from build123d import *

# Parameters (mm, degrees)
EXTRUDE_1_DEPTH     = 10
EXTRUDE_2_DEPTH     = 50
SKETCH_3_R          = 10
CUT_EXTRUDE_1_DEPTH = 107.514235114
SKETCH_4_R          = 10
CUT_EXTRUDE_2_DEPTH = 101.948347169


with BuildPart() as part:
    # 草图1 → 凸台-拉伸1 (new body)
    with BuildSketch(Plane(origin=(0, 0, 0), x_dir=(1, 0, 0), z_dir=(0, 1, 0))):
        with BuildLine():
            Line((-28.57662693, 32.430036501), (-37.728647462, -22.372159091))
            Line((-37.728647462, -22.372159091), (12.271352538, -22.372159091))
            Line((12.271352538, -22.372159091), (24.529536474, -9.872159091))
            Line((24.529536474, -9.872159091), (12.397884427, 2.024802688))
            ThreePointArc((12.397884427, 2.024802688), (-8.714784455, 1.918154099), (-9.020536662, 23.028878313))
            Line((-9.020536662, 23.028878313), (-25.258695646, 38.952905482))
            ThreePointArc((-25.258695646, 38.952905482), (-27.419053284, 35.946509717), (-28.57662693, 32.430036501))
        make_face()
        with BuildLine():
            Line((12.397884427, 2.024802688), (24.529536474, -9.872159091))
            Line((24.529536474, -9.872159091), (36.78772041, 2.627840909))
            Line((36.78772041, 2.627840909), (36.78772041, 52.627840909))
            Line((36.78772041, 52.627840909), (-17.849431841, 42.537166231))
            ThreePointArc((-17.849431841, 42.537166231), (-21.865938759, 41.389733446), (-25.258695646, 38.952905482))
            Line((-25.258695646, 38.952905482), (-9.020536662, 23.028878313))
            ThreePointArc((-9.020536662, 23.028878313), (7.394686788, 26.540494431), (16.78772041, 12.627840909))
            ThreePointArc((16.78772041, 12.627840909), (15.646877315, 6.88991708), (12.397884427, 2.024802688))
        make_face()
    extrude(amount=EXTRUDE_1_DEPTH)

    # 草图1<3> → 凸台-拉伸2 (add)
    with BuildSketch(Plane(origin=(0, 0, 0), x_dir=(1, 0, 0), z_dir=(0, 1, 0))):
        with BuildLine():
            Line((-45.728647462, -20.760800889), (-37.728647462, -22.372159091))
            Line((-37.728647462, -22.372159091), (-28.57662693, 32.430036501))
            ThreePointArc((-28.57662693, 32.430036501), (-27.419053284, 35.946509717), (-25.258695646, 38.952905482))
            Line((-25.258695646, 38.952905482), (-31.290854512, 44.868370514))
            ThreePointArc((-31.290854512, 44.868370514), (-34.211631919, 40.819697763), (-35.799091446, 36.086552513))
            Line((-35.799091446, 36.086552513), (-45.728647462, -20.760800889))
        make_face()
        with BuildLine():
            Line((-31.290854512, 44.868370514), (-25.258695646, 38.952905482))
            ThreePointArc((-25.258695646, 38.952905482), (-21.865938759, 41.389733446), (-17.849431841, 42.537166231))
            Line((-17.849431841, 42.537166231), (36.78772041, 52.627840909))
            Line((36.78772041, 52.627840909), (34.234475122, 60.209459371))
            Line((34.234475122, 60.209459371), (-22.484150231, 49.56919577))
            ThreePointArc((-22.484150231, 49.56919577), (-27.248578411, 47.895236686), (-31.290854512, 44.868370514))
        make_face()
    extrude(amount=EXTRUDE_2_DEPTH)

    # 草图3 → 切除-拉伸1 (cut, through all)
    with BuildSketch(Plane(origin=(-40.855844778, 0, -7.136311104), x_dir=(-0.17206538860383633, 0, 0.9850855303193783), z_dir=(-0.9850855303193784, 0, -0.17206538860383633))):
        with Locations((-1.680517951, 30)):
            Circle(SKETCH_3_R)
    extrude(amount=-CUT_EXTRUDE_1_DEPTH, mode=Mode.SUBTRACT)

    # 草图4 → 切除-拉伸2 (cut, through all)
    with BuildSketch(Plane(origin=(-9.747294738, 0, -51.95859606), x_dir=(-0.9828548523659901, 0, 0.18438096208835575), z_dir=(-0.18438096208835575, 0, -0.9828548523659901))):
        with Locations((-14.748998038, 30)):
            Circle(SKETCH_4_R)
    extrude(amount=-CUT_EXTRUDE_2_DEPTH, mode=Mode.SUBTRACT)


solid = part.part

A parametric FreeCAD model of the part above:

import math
import FreeCAD as App
import Part
import Sketcher
Q = App.Units.Quantity

doc = App.newDocument("Part")
body = doc.addObject("PartDesign::Body", "Body")

sketch1 = body.newObject("Sketcher::SketchObject", "Sketch")
sketch1.AttachmentSupport = (doc.getObject("XZ_Plane"), [""])
sketch1.MapMode = "FlatFace"
sketch1.addGeometry(Part.LineSegment(App.Vector(-29, -32, 0), App.Vector(-38, 22, 0)), False)
sketch1.addGeometry(Part.LineSegment(App.Vector(-38, 22, 0), App.Vector(12, 22, 0)), False)
sketch1.addGeometry(Part.LineSegment(App.Vector(12, 22, 0), App.Vector(37, -3, 0)), False)
sketch1.addGeometry(Part.LineSegment(App.Vector(37, -3, 0), App.Vector(37, -53, 0)), False)
sketch1.addGeometry(Part.LineSegment(App.Vector(37, -53, 0), App.Vector(-18, -43, 0)), False)
sketch1.addGeometry(Part.ArcOfCircle(Part.Circle(App.Vector(-17, -30, 0), App.Vector(0, 0, 1), 12), math.radians(-136), math.radians(-96)), False)
sketch1.addGeometry(Part.ArcOfCircle(Part.Circle(App.Vector(-17, -30, 0), App.Vector(0, 0, 1), 12), math.radians(-171), math.radians(-136)), False)
sketch1.addGeometry(Part.ArcOfCircle(Part.Circle(App.Vector(2, -13, 0), App.Vector(0, 0, 1), 15), math.radians(45), math.radians(224)), False)
sketch1.addGeometry(Part.ArcOfCircle(Part.Circle(App.Vector(2, -13, 0), App.Vector(0, 0, 1), 15), math.radians(-136), math.radians(0)), False)
sketch1.addGeometry(Part.ArcOfCircle(Part.Circle(App.Vector(2, -13, 0), App.Vector(0, 0, 1), 15), math.radians(0), math.radians(45)), False)
sketch1.addConstraint(Sketcher.Constraint("Coincident", 0, 2, 1, 1))
sketch1.addConstraint(Sketcher.Constraint("Coincident", 1, 2, 2, 1))
sketch1.addConstraint(Sketcher.Constraint("Coincident", 2, 2, 3, 1))
sketch1.addConstraint(Sketcher.Constraint("Coincident", 3, 2, 4, 1))
sketch1.addConstraint(Sketcher.Constraint("Coincident", 4, 2, 5, 2))
sketch1.addConstraint(Sketcher.Constraint("Tangent", 5, 1, 6, 2))
sketch1.addConstraint(Sketcher.Constraint("Tangent", 6, 1, 0, 1))
sketch1.addConstraint(Sketcher.Constraint("Tangent", 7, 2, 8, 1))
sketch1.addConstraint(Sketcher.Constraint("Tangent", 8, 2, 9, 1))
sketch1.addConstraint(Sketcher.Constraint("Tangent", 9, 2, 7, 1))
sketch1.addConstraint(Sketcher.Constraint("Horizontal", 1))
sketch1.addConstraint(Sketcher.Constraint("Vertical", 3))
sketch1.addConstraint(Sketcher.Constraint("Equal", 5, 6))
sketch1.addConstraint(Sketcher.Constraint("Horizontal", 9, 3, 8, 2))
sketch1.addConstraint(Sketcher.Constraint("Equal", 1, 3))
sketch1.addConstraint(Sketcher.Constraint("Equal", 0, 4))
sketch1.addConstraint(Sketcher.Constraint("Radius", 7, Q("15 mm")))
sketch1.addConstraint(Sketcher.Constraint("DistanceX", 1, 1, 1, 2, Q("50 mm")))
sketch1.addConstraint(Sketcher.Constraint("DistanceY", 8, 3, 0, 2, Q("35 mm")))
sketch1.addConstraint(Sketcher.Constraint("DistanceY", 2, 2, 1, 2, Q("25 mm")))
sketch1.addConstraint(Sketcher.Constraint("DistanceX", 8, 3, 2, 2, Q("35 mm")))
sketch1.addConstraint(Sketcher.Constraint("Radius", 5, Q("12.182096 mm")))
sketch1.addConstraint(Sketcher.Constraint("DistanceX", 4, 2, 6, 3, Q("1.288499 mm")))
sketch1.addConstraint(Sketcher.Constraint("DistanceY", 5, 1, 6, 3, Q("8.529502 mm")))
sketch1.addConstraint(Sketcher.Constraint("Distance", 0, Q("55.561139 mm")))
sketch1.addConstraint(Sketcher.Constraint("Distance", 2, Q("35.01503 mm")))
sketch1.addConstraint(Sketcher.Constraint("DistanceX", -1, 1, 7, 3, Q("1.78772 mm")))
sketch1.addConstraint(Sketcher.Constraint("DistanceY", 7, 3, -1, 1, Q("12.627841 mm")))
sketch1.addConstraint(Sketcher.Constraint("DistanceY", 7, 2, -1, 1, Q("23.028878 mm")))
sketch1.addConstraint(Sketcher.Constraint("DistanceY", 8, 2, 9, 2, Q("10.603038 mm")))
pad1 = body.newObject("PartDesign::Pad", "Pad")
pad1.Profile = sketch1
pad1.Length = 10
pad1.Reversed = True

sketch2 = body.newObject("Sketcher::SketchObject", "Sketch001")
sketch2.AttachmentSupport = (doc.getObject("XZ_Plane"), [""])
sketch2.MapMode = "FlatFace"
sketch2.addGeometry(Part.LineSegment(App.Vector(-46, 21, 0), App.Vector(-38, 22, 0)), False)
sketch2.addGeometry(Part.LineSegment(App.Vector(-38, 22, 0), App.Vector(-29, -32, 0)), False)
sketch2.addGeometry(Part.ArcOfCircle(Part.Circle(App.Vector(-17, -30, 0), App.Vector(0, 0, 1), 12), math.radians(-171), math.radians(-136)), False)
sketch2.addGeometry(Part.ArcOfCircle(Part.Circle(App.Vector(-17, -30, 0), App.Vector(0, 0, 1), 12), math.radians(-136), math.radians(-96)), False)
sketch2.addGeometry(Part.LineSegment(App.Vector(-18, -43, 0), App.Vector(37, -53, 0)), False)
sketch2.addGeometry(Part.LineSegment(App.Vector(37, -53, 0), App.Vector(34, -60, 0)), False)
sketch2.addGeometry(Part.LineSegment(App.Vector(34, -60, 0), App.Vector(-22, -50, 0)), False)
sketch2.addGeometry(Part.ArcOfCircle(Part.Circle(App.Vector(-19, -33, 0), App.Vector(0, 0, 1), 17), math.radians(-136), math.radians(-101)), False)
sketch2.addGeometry(Part.ArcOfCircle(Part.Circle(App.Vector(-19, -33, 0), App.Vector(0, 0, 1), 17), math.radians(-170), math.radians(-136)), False)
sketch2.addGeometry(Part.LineSegment(App.Vector(-36, -36, 0), App.Vector(-46, 21, 0)), False)
sketch2.addConstraint(Sketcher.Constraint("Coincident", 0, 2, 1, 1))
sketch2.addConstraint(Sketcher.Constraint("Tangent", 1, 2, 2, 1))
sketch2.addConstraint(Sketcher.Constraint("Tangent", 2, 2, 3, 1))
sketch2.addConstraint(Sketcher.Constraint("Coincident", 3, 2, 4, 1))
sketch2.addConstraint(Sketcher.Constraint("Coincident", 4, 2, 5, 1))
sketch2.addConstraint(Sketcher.Constraint("Coincident", 5, 2, 6, 1))
sketch2.addConstraint(Sketcher.Constraint("Tangent", 6, 2, 7, 2))
sketch2.addConstraint(Sketcher.Constraint("Tangent", 7, 1, 8, 2))
sketch2.addConstraint(Sketcher.Constraint("Tangent", 8, 1, 9, 1))
sketch2.addConstraint(Sketcher.Constraint("Coincident", 9, 2, 0, 1))
sketch2.addConstraint(Sketcher.Constraint("Equal", 2, 3))
sketch2.addConstraint(Sketcher.Constraint("Equal", 7, 8))
sketch2.addConstraint(Sketcher.Constraint("Equal", 1, 4))
sketch2.addConstraint(Sketcher.Constraint("Equal", 6, 9))
sketch2.addConstraint(Sketcher.Constraint("Distance", 5, Q("8 mm")))
sketch2.addConstraint(Sketcher.Constraint("DistanceX", 9, 2, 0, 2, Q("8 mm")))
sketch2.addConstraint(Sketcher.Constraint("Radius", 7, Q("16.629031 mm")))
sketch2.addConstraint(Sketcher.Constraint("Radius", 2, Q("12.182096 mm")))
sketch2.addConstraint(Sketcher.Constraint("DistanceY", -1, 1, 9, 2, Q("20.760801 mm")))
sketch2.addConstraint(Sketcher.Constraint("DistanceY", 2, 2, 2, 3, Q("8.529502 mm")))
sketch2.addConstraint(Sketcher.Constraint("DistanceX", 3, 2, 2, 3, Q("1.288499 mm")))
sketch2.addConstraint(Sketcher.Constraint("DistanceY", 7, 1, 8, 3, Q("11.643099 mm")))
sketch2.addConstraint(Sketcher.Constraint("Distance", 1, Q("55.561139 mm")))
sketch2.addConstraint(Sketcher.Constraint("Distance", 6, Q("57.708038 mm")))
sketch2.addConstraint(Sketcher.Constraint("DistanceY", 7, 3, -1, 1, Q("33.225272 mm")))
sketch2.addConstraint(Sketcher.Constraint("DistanceY", -1, 1, 0, 2, Q("22.372159 mm")))
sketch2.addConstraint(Sketcher.Constraint("DistanceX", 3, 2, -1, 1, Q("17.849432 mm")))
sketch2.addConstraint(Sketcher.Constraint("DistanceX", -1, 1, 4, 2, Q("36.78772 mm")))
sketch2.addConstraint(Sketcher.Constraint("DistanceY", 4, 2, -1, 1, Q("52.627841 mm")))
pad2 = body.newObject("PartDesign::Pad", "Pad001")
pad2.Profile = sketch2
pad2.Length = 50
pad2.Reversed = True

sketch3 = body.newObject("Sketcher::SketchObject", "Sketch002")
sketch3.Placement = App.Placement(App.Vector(-40.855845, 0, -7.136311), App.Rotation(App.Vector(-0.172065389, 0, 0.98508553), App.Vector(0, 1, 0), App.Vector(-0.98508553, 0, -0.172065389), "ZXY"))
sketch3.addGeometry(Part.Circle(App.Vector(-2, 30, 0), App.Vector(0, 0, 1), 10), False)
sketch3.addConstraint(Sketcher.Constraint("Diameter", 0, Q("20 mm")))
sketch3.addConstraint(Sketcher.Constraint("DistanceY", -1, 1, 0, 3, Q("30 mm")))
sketch3.addConstraint(Sketcher.Constraint("DistanceX", 0, 3, -1, 1, Q("1.680518 mm")))
pocket1 = body.newObject("PartDesign::Pocket", "Pocket")
pocket1.Profile = sketch3
pocket1.Type = "ThroughAll"

sketch4 = body.newObject("Sketcher::SketchObject", "Sketch003")
sketch4.Placement = App.Placement(App.Vector(-9.747295, 0, -51.958596), App.Rotation(App.Vector(-0.982854852, 0, 0.184380962), App.Vector(0, 0.999999999, 0), App.Vector(-0.184380962, 0, -0.982854852), "ZXY"))
sketch4.addGeometry(Part.Circle(App.Vector(-15, 30, 0), App.Vector(0, 0, 1), 10), False)
sketch4.addConstraint(Sketcher.Constraint("Diameter", 0, Q("20 mm")))
sketch4.addConstraint(Sketcher.Constraint("DistanceY", -1, 1, 0, 3, Q("30 mm")))
sketch4.addConstraint(Sketcher.Constraint("DistanceX", 0, 3, -1, 1, Q("14.748998 mm")))
pocket2 = body.newObject("PartDesign::Pocket", "Pocket001")
pocket2.Profile = sketch4
pocket2.Type = "ThroughAll"

doc.recompute()
